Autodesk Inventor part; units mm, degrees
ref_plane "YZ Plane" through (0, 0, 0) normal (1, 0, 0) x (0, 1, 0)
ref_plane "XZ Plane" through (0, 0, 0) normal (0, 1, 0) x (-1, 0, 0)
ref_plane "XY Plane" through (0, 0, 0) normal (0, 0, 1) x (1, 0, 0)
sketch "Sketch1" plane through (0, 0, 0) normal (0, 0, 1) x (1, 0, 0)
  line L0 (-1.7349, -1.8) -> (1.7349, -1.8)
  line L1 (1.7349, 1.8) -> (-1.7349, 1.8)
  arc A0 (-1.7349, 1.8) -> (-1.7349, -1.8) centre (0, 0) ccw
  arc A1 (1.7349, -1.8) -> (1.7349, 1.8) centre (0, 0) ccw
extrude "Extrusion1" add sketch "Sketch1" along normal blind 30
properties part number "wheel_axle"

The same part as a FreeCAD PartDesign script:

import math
import FreeCAD as App
import Part
import Sketcher
from FreeCAD import Vector

doc = App.newDocument("Part")
body = doc.addObject("PartDesign::Body", "Body")

sketch1 = body.newObject("Sketcher::SketchObject", "Sketch")
sketch1.AttachmentSupport = (doc.getObject("XY_Plane"), [""])
sketch1.MapMode = "FlatFace"
sketch1.addGeometry([
    Part.ArcOfCircle(Part.Circle(Vector(0, 0, 0), Vector(0, 0, 1), 2.5), math.radians(134), math.radians(226)),
    Part.LineSegment(Vector(-1.7, -1.8, 0), Vector(1.7, -1.8, 0)),
    Part.ArcOfCircle(Part.Circle(Vector(0, 0, 0), Vector(0, 0, 1), 2.5), math.radians(-46), math.radians(46)),
    Part.LineSegment(Vector(1.7, 1.8, 0), Vector(-1.7, 1.8, 0)),
], False)
sketch1.addConstraint([
    Sketcher.Constraint("Coincident", 0, 2, 1, 1),
    Sketcher.Constraint("Coincident", 1, 2, 2, 1),
    Sketcher.Constraint("Coincident", 2, 2, 3, 1),
    Sketcher.Constraint("Coincident", 3, 2, 0, 1),
    Sketcher.Constraint("Horizontal", 1),
    Sketcher.Constraint("Horizontal", 3),
    Sketcher.Constraint("Coincident", 0, 3, -1, 1),
    Sketcher.Constraint("Coincident", 2, 3, -1, 1),
    Sketcher.Constraint("Equal", 0, 2),
    Sketcher.Constraint("Vertical", 1, 2, 2, 2),
    Sketcher.Constraint("Radius", 0, 2.5),
    Sketcher.Constraint("DistanceY", 0, 2, -1, 1, 1.8),
])
pad1 = body.newObject("PartDesign::Pad", "Pad")
pad1.Profile = sketch1
pad1.Length = 30

doc.recompute()
